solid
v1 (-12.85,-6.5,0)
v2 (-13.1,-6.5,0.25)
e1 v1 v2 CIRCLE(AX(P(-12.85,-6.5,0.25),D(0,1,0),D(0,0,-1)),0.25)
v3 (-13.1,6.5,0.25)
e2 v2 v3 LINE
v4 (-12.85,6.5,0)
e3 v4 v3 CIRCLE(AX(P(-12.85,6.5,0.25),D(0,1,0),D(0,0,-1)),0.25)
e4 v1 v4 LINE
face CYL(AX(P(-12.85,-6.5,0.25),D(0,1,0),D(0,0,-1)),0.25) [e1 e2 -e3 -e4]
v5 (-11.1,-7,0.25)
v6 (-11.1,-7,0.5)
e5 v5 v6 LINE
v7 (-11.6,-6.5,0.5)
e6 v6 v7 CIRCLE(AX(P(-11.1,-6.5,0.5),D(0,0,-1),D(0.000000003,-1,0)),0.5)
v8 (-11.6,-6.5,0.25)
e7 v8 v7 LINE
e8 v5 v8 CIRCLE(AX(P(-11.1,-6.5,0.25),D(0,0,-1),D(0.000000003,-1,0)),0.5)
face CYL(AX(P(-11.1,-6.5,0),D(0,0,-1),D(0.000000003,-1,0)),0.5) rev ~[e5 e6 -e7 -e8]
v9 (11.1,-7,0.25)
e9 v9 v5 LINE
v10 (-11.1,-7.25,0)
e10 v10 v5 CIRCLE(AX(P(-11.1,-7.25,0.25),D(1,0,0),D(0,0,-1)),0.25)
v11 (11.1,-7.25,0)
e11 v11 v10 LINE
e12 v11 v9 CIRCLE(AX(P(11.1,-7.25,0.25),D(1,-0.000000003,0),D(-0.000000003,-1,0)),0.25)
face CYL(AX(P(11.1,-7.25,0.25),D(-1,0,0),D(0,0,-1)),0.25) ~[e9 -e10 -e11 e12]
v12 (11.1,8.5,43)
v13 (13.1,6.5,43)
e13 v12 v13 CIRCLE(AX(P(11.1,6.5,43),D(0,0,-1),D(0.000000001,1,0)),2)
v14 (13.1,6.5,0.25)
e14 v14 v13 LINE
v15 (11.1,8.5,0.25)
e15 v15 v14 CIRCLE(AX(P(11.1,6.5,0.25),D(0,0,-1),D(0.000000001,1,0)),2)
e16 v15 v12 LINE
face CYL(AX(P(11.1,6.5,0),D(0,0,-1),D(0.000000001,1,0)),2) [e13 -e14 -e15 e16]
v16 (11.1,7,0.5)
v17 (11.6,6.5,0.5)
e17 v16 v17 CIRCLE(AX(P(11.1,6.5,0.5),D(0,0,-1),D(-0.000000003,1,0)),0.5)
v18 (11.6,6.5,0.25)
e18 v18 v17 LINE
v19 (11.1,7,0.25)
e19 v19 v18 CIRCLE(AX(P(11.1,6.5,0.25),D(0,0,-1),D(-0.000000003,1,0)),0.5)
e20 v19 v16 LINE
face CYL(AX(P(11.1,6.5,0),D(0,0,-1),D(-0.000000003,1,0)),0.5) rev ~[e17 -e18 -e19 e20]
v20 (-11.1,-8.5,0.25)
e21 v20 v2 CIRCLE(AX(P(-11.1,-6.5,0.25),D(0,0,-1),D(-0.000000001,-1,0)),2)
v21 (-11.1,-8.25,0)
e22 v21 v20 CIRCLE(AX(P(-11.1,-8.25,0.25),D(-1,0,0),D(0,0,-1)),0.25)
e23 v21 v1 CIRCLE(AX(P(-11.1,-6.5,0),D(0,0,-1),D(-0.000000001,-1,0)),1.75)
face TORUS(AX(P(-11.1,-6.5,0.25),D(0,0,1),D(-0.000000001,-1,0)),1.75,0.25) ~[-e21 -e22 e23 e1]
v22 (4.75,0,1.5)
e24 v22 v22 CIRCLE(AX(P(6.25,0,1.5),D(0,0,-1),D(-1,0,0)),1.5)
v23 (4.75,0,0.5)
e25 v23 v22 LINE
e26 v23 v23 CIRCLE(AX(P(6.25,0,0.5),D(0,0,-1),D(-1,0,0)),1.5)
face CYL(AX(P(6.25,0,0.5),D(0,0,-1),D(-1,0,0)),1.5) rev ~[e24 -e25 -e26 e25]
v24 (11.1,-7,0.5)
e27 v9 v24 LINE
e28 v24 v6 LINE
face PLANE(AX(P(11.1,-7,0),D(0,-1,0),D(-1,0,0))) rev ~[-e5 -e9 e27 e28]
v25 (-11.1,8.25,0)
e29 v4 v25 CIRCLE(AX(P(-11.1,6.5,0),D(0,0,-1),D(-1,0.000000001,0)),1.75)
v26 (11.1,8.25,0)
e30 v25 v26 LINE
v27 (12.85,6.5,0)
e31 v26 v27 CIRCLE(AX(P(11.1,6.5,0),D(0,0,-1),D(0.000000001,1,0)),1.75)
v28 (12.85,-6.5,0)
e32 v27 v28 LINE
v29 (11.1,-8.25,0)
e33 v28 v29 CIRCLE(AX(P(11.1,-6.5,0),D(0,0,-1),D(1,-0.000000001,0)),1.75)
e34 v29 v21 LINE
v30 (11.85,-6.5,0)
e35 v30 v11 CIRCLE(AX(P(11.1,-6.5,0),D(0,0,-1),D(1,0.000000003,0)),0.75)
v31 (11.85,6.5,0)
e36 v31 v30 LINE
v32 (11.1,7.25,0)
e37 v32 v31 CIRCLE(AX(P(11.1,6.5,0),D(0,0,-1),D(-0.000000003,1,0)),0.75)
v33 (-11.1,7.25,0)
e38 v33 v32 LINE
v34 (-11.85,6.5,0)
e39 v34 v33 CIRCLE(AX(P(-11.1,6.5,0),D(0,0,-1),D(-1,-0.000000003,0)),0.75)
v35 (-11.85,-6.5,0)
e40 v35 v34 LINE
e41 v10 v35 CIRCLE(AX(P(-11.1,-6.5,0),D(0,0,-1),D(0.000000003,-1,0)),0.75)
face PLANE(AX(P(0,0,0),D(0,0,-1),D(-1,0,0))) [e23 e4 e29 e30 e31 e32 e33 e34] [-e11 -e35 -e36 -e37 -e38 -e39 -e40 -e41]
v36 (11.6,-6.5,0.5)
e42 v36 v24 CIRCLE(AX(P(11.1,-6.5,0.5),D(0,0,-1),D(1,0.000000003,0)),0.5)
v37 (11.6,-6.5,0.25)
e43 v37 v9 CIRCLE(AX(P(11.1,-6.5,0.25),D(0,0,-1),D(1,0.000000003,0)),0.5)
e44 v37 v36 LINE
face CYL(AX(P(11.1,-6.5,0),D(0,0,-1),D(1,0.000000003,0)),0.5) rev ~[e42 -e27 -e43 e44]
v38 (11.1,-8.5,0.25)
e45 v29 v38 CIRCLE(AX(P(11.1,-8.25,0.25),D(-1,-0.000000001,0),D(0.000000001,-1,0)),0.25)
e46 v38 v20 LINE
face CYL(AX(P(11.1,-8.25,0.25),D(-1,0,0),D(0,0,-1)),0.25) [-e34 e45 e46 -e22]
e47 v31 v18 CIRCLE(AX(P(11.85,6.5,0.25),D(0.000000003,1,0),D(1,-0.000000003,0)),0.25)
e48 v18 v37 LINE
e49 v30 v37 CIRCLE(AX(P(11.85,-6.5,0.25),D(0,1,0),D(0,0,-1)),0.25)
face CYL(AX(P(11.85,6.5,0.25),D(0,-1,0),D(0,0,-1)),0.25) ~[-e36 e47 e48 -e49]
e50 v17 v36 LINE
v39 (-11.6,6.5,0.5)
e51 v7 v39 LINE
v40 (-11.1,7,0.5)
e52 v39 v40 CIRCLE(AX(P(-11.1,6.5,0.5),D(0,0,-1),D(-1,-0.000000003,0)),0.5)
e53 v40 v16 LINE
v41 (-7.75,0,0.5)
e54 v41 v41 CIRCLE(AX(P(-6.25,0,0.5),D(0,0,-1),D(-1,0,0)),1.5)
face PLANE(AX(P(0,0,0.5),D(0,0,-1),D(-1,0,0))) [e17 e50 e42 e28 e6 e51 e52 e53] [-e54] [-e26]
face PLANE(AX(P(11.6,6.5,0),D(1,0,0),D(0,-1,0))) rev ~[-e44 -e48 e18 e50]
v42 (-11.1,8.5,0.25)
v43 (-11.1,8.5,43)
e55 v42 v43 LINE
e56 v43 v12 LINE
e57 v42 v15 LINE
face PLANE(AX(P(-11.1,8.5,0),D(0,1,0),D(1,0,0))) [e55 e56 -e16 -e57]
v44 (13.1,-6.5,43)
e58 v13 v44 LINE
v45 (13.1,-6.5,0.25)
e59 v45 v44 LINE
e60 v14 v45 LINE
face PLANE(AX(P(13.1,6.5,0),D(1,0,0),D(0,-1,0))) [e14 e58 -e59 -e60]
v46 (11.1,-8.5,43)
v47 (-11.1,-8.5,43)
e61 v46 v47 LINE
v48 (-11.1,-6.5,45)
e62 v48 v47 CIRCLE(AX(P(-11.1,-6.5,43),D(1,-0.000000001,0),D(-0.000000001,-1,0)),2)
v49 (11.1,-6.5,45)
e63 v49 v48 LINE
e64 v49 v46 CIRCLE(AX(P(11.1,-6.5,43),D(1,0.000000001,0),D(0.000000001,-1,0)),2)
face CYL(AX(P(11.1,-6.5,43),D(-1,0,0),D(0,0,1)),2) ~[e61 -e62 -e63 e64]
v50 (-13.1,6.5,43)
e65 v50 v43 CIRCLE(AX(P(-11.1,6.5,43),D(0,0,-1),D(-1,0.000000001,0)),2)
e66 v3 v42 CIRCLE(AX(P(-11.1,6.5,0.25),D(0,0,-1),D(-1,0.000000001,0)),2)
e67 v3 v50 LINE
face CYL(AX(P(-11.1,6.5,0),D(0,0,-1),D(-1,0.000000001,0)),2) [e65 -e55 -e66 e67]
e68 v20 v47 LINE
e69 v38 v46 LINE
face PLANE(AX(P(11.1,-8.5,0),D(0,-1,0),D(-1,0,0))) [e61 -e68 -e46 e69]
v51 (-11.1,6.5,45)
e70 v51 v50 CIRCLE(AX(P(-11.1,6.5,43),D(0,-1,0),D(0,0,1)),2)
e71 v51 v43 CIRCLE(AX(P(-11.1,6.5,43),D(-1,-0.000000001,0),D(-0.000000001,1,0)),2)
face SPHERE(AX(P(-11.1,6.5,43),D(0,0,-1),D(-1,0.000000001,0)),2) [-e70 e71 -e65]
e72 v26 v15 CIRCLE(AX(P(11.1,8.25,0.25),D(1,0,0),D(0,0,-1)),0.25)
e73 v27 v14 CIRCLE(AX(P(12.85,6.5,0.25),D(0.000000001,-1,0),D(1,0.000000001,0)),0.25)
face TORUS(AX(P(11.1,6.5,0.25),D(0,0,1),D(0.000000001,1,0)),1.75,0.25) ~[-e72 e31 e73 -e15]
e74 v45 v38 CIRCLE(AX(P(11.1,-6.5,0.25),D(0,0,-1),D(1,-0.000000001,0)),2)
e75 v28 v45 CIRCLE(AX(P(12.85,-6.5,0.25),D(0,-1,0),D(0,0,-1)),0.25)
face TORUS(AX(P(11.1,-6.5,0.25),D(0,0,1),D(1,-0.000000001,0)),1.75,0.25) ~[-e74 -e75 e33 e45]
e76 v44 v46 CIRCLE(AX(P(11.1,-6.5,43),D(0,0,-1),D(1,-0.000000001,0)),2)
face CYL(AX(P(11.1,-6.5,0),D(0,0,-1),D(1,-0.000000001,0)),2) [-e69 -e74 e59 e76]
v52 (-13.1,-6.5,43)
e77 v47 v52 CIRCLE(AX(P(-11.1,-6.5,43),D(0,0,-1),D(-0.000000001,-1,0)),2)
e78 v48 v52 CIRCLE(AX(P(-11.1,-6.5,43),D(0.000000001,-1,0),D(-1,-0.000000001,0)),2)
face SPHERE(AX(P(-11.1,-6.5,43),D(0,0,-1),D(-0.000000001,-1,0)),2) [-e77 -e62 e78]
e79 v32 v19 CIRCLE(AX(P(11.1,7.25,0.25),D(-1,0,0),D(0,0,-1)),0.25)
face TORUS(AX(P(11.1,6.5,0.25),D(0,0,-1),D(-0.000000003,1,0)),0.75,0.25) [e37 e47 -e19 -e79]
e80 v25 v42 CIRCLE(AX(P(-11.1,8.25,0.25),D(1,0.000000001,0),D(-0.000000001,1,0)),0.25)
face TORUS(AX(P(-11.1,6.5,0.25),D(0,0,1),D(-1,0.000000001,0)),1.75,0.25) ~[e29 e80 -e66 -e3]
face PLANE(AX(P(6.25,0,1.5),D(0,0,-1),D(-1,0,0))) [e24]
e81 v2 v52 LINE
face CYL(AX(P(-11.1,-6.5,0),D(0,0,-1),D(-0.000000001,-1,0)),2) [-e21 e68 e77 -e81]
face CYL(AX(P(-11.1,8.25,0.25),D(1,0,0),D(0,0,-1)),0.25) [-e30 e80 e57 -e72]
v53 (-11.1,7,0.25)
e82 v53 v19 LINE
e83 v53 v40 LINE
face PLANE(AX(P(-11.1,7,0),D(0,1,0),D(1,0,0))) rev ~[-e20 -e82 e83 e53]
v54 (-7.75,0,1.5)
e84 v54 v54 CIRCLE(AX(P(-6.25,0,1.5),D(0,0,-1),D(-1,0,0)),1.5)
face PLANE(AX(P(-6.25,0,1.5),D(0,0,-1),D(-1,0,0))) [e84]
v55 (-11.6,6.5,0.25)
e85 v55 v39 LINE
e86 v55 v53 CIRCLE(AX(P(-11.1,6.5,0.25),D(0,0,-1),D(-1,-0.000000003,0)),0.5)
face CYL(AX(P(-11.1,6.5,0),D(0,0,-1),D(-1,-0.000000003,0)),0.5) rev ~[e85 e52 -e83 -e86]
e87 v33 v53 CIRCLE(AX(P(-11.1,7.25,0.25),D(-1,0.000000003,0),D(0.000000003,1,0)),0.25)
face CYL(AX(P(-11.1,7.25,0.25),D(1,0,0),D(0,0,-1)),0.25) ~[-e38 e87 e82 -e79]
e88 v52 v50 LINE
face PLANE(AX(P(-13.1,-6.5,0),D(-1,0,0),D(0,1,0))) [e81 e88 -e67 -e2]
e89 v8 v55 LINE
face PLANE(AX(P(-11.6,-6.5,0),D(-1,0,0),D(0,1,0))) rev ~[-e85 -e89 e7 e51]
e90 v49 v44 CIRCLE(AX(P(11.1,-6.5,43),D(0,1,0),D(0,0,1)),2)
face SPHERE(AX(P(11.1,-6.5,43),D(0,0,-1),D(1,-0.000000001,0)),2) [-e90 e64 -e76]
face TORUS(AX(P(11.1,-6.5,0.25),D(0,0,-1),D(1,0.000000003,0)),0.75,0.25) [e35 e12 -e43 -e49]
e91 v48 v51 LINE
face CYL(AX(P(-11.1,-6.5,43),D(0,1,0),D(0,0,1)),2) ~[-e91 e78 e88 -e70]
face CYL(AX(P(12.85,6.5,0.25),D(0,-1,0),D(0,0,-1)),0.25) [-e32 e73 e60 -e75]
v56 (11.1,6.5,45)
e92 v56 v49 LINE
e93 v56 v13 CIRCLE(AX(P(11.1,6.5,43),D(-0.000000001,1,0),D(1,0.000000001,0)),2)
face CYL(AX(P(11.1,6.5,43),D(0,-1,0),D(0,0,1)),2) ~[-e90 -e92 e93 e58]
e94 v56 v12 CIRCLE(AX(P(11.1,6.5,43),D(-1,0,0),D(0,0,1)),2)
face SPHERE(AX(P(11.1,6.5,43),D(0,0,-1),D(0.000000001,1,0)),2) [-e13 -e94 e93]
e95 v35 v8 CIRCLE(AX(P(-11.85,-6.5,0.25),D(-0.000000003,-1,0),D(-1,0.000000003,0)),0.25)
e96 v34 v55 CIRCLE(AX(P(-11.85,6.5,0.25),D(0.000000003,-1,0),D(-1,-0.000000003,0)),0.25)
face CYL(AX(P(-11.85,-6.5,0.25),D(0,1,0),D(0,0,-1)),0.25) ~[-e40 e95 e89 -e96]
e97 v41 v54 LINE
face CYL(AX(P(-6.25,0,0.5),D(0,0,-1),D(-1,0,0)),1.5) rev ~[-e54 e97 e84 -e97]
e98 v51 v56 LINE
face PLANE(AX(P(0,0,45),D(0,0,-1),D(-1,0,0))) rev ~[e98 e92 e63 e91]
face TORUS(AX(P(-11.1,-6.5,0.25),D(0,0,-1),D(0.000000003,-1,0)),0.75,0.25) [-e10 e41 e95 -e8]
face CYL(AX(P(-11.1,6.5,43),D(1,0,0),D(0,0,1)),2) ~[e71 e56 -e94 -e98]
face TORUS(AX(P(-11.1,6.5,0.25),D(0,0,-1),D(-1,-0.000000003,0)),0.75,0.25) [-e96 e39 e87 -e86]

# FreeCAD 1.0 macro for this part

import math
import FreeCAD as App
import Part
import Sketcher


def edges_at(feature, points):
    """Names of the edges that pass closest to the given points."""
    edges = feature.Shape.Edges
    near = lambda p: min(range(len(edges)), key=lambda i: edges[i].distToShape(Part.Vertex(*p))[0])
    return sorted({f"Edge{near(p) + 1}" for p in points})

doc = App.newDocument("Part")
body = doc.addObject("PartDesign::Body", "Body")

# Sketch on XY plane
sketch1 = body.newObject("Sketcher::SketchObject", "Sketch")
sketch1.AttachmentSupport = (doc.getObject("XY_Plane"), [""])
sketch1.MapMode = "FlatFace"
sketch1.addGeometry([
    Part.LineSegment(App.Vector(11.1, 8.5, 0), App.Vector(-11.1, 8.5, 0)),  # 0
    Part.ArcOfCircle(Part.Circle(App.Vector(-11.1, 6.5, 0), App.Vector(0, 0, 1), 2), math.radians(90), math.radians(180)),  # 1
    Part.LineSegment(App.Vector(-13.1, 6.5, 0), App.Vector(-13.1, -6.5, 0)),  # 2
    Part.ArcOfCircle(Part.Circle(App.Vector(-11.1, -6.5, 0), App.Vector(0, 0, 1), 2), math.radians(-180), math.radians(-90)),  # 3
    Part.LineSegment(App.Vector(-11.1, -8.5, 0), App.Vector(11.1, -8.5, 0)),  # 4
    Part.ArcOfCircle(Part.Circle(App.Vector(11.1, -6.5, 0), App.Vector(0, 0, 1), 2), math.radians(-90), math.radians(0)),  # 5
    Part.LineSegment(App.Vector(13.1, -6.5, 0), App.Vector(13.1, 6.5, 0)),  # 6
    Part.ArcOfCircle(Part.Circle(App.Vector(11.1, 6.5, 0), App.Vector(0, 0, 1), 2), math.radians(0), math.radians(90)),  # 7
], False)
sketch1.addConstraint([
    Sketcher.Constraint("Tangent", 0, 2, 1, 1),
    Sketcher.Constraint("Tangent", 1, 2, 2, 1),
    Sketcher.Constraint("Tangent", 2, 2, 3, 1),
    Sketcher.Constraint("Tangent", 3, 2, 4, 1),
    Sketcher.Constraint("Tangent", 4, 2, 5, 1),
    Sketcher.Constraint("Tangent", 5, 2, 6, 1),
    Sketcher.Constraint("Tangent", 6, 2, 7, 1),
    Sketcher.Constraint("Tangent", 7, 2, 0, 1),
    Sketcher.Constraint("Horizontal", 0),
    Sketcher.Constraint("Vertical", 2),
    Sketcher.Constraint("Horizontal", 4),
    Sketcher.Constraint("Vertical", 6),
    Sketcher.Constraint("Equal", 1, 3),
    Sketcher.Constraint("Equal", 3, 5),
    Sketcher.Constraint("Equal", 5, 7),
    Sketcher.Constraint("Symmetric", 1, 3, 5, 3, -1, 1),
    Sketcher.Constraint("Radius", 1, 2.0),
    Sketcher.Constraint("DistanceY", 2, 2, 2, 1, 13.0),
    Sketcher.Constraint("DistanceX", 0, 2, 0, 1, 22.2),
])
pad1 = body.newObject("PartDesign::Pad", "Pad")
pad1.Profile = sketch1
pad1.Length = 45

# Sketch on XY plane
sketch2 = body.newObject("Sketcher::SketchObject", "Sketch001")
sketch2.AttachmentSupport = (doc.getObject("XY_Plane"), [""])
sketch2.MapMode = "FlatFace"
sketch2.addGeometry([
    Part.LineSegment(App.Vector(-11.6, -6.5, 0), App.Vector(-11.6, 6.5, 0)),  # 0
    Part.ArcOfCircle(Part.Circle(App.Vector(-11.1, 6.5, 0), App.Vector(0, 0, 1), 0.5), math.radians(90), math.radians(180)),  # 1
    Part.LineSegment(App.Vector(-11.1, 7, 0), App.Vector(11.1, 7, 0)),  # 2
    Part.ArcOfCircle(Part.Circle(App.Vector(11.1, 6.5, 0), App.Vector(0, 0, 1), 0.5), math.radians(0), math.radians(90)),  # 3
    Part.LineSegment(App.Vector(11.6, 6.5, 0), App.Vector(11.6, -6.5, 0)),  # 4
    Part.ArcOfCircle(Part.Circle(App.Vector(11.1, -6.5, 0), App.Vector(0, 0, 1), 0.5), math.radians(-90), math.radians(0)),  # 5
    Part.LineSegment(App.Vector(11.1, -7, 0), App.Vector(-11.1, -7, 0)),  # 6
    Part.ArcOfCircle(Part.Circle(App.Vector(-11.1, -6.5, 0), App.Vector(0, 0, 1), 0.5), math.radians(180), math.radians(270)),  # 7
], False)
sketch2.addConstraint([
    Sketcher.Constraint("Tangent", 0, 2, 1, 2),
    Sketcher.Constraint("Tangent", 1, 1, 2, 1),
    Sketcher.Constraint("Tangent", 2, 2, 3, 2),
    Sketcher.Constraint("Tangent", 3, 1, 4, 1),
    Sketcher.Constraint("Tangent", 4, 2, 5, 2),
    Sketcher.Constraint("Tangent", 5, 1, 6, 1),
    Sketcher.Constraint("Tangent", 6, 2, 7, 2),
    Sketcher.Constraint("Tangent", 7, 1, 0, 1),
    Sketcher.Constraint("Vertical", 0),
    Sketcher.Constraint("Horizontal", 2),
    Sketcher.Constraint("Vertical", 4),
    Sketcher.Constraint("Horizontal", 6),
    Sketcher.Constraint("Equal", 1, 3),
    Sketcher.Constraint("Equal", 3, 5),
    Sketcher.Constraint("Equal", 5, 7),
    Sketcher.Constraint("Symmetric", 1, 3, 5, 3, -1, 1),
    Sketcher.Constraint("Radius", 1, 0.5),
    Sketcher.Constraint("DistanceY", 0, 1, 0, 2, 13.0),
    Sketcher.Constraint("DistanceX", 2, 1, 2, 2, 22.2),
])
pocket1 = body.newObject("PartDesign::Pocket", "Pocket")
pocket1.Profile = sketch2
pocket1.Length = 0.5
pocket1.Reversed = True
doc.recompute()

fillet = body.newObject("PartDesign::Fillet", "Fillet")
fillet.Base = (pocket1, edges_at(pocket1, [
    (-13.1, 0, 0),
    (-12.514, 7.914, 0),
    (-11.454, 6.854, 0),
    (0, 7, 0),
    (11.454, 6.854, 0),
    (11.6, 0, 0),
    (11.454, -6.854, 0),
    (0, -7, 0),
    (-11.454, -6.854, 0),
    (-11.6, 0, 0),
    (0, 8.5, 0),
    (12.514, 7.914, 0),
    (13.1, 0, 0),
    (12.514, -7.914, 0),
    (0, -8.5, 0),
    (-12.514, -7.914, 0),
]))
fillet.Radius = 0.25
doc.recompute()

fillet2 = body.newObject("PartDesign::Fillet", "Fillet001")
fillet2.Base = (fillet, edges_at(fillet, [
    (-12.514, -7.914, 45),
    (0, -8.5, 45),
    (12.514, -7.914, 45),
    (13.1, 0, 45),
    (12.514, 7.914, 45),
    (0, 8.5, 45),
    (-12.514, 7.914, 45),
    (-13.1, 0, 45),
]))
fillet2.Radius = 2

# Sketch on XY plane
sketch3 = body.newObject("Sketcher::SketchObject", "Sketch002")
sketch3.AttachmentSupport = (doc.getObject("XY_Plane"), [""])
sketch3.MapMode = "FlatFace"
sketch3.AttachmentOffset = App.Placement(App.Vector(0, 0, 0.5), App.Rotation())
sketch3.addGeometry([
    Part.Circle(App.Vector(6.2, 0, 0), App.Vector(0, 0, 1), 1.5),
    Part.Circle(App.Vector(-6.2, 0, 0), App.Vector(0, 0, 1), 1.5),
], False)
sketch3.addConstraint([
    Sketcher.Constraint("Equal", 0, 1),
    Sketcher.Constraint("Symmetric", 0, 3, 1, 3, -1, 1),
    Sketcher.Constraint("PointOnObject", 0, 3, -1),
    Sketcher.Constraint("Diameter", 0, 3.0),
    Sketcher.Constraint("DistanceX", 1, 3, 0, 3, 12.5),
])
pocket2 = body.newObject("PartDesign::Pocket", "Pocket001")
pocket2.Profile = sketch3
pocket2.Length = 1
pocket2.Reversed = True

doc.recompute()
